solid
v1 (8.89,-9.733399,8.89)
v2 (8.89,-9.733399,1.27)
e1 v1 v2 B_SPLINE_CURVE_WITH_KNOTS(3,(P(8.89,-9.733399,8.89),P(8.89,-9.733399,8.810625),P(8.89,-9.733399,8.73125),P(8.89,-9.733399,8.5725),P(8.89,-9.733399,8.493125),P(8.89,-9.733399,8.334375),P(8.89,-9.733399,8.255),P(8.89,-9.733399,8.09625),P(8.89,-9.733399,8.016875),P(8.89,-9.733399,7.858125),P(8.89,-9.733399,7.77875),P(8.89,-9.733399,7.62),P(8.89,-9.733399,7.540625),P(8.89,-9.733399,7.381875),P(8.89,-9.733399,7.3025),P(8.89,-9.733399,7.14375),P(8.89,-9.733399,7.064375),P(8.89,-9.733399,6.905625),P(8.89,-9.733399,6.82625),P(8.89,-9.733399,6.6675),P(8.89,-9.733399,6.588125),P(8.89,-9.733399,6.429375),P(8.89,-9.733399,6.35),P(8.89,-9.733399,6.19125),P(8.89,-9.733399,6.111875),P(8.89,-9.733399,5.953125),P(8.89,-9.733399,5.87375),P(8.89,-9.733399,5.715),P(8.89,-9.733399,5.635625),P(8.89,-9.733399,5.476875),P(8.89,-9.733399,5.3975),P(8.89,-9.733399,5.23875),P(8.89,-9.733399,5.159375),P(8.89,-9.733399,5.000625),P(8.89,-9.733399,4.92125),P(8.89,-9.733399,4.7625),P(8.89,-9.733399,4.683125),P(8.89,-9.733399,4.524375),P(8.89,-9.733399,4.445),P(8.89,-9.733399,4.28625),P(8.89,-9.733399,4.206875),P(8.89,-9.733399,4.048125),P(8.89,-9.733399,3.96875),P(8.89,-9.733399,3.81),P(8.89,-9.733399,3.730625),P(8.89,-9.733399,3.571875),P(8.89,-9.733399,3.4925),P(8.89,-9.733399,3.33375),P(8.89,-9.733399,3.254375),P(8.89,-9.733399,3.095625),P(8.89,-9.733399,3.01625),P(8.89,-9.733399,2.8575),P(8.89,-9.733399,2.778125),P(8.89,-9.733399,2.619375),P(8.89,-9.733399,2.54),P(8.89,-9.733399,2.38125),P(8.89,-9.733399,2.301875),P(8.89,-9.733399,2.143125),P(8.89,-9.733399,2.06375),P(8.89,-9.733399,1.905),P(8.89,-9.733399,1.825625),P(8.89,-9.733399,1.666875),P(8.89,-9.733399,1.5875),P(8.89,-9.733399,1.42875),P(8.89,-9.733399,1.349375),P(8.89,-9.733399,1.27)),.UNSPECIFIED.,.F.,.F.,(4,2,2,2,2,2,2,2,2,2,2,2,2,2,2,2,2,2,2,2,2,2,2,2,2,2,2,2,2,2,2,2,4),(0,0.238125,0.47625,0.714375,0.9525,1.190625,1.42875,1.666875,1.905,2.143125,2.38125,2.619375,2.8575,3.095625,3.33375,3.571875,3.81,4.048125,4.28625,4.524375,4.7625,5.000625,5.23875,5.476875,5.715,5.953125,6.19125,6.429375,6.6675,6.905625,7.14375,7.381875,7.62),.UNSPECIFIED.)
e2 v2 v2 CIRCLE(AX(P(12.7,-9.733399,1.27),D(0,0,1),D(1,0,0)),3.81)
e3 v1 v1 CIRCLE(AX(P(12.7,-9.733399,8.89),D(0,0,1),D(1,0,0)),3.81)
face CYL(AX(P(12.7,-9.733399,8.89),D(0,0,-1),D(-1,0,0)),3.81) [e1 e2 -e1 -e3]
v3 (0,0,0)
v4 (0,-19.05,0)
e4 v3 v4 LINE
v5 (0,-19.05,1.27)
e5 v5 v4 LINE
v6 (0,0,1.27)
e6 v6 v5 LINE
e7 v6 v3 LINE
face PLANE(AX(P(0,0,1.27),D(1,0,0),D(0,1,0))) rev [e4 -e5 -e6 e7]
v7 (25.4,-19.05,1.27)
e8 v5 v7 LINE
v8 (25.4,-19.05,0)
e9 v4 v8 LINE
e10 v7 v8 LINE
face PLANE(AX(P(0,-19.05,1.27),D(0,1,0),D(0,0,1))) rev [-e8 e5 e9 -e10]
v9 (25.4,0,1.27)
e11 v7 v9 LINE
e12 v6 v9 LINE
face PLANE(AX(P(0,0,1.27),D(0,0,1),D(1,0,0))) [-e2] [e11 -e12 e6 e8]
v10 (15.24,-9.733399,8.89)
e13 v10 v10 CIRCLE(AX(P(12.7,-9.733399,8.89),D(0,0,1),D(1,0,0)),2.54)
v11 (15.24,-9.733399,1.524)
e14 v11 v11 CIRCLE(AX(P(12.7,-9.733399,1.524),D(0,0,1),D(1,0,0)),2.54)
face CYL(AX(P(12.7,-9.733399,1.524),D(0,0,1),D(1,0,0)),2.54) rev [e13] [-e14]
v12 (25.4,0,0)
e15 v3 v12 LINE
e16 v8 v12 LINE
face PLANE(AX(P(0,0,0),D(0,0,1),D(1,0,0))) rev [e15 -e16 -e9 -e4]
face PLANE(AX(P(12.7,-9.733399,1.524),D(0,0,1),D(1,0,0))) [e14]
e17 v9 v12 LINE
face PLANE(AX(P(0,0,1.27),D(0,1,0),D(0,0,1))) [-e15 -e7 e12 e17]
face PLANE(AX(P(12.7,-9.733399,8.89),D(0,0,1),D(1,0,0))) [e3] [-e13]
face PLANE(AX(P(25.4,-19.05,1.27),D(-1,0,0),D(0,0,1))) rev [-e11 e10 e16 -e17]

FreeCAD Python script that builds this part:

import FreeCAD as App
import Part
import Sketcher
from FreeCAD import Vector
Q = App.Units.Quantity


def add_polygon(sketch, points):
    """Adds a closed chain of lines whose ends are joined by coincident constraints."""
    first, n = sketch.GeometryCount, len(points)
    for a, b in zip(points, points[1:] + points[:1]):
        sketch.addGeometry(Part.LineSegment(App.Vector(*a, 0), App.Vector(*b, 0)), False)
    for i in range(n):
        sketch.addConstraint(Sketcher.Constraint("Coincident", first + i, 2, first + (i + 1) % n, 1))

doc = App.newDocument("Part")
body = doc.addObject("PartDesign::Body", "Body")

# Sketch on XY plane
sketch1 = doc.addObject("Sketcher::SketchObject", "Sketch")
body.addObject(sketch1)
sketch1.AttachmentSupport = (doc.XY_Plane, [""])
sketch1.MapMode = "FlatFace"
add_polygon(sketch1, [(0, 0), (0, -19), (25, -19), (25, 0)])  # lines 0-3
sketch1.addConstraint(Sketcher.Constraint("Vertical", 0))
sketch1.addConstraint(Sketcher.Constraint("Horizontal", 1))
sketch1.addConstraint(Sketcher.Constraint("Vertical", 2))
sketch1.addConstraint(Sketcher.Constraint("Horizontal", 3))
sketch1.addConstraint(Sketcher.Constraint("Coincident", 3, 2, -1, 1))
sketch1.addConstraint(Sketcher.Constraint("DistanceX", 1, 1, 1, 2, Q("1 in")))
sketch1.addConstraint(Sketcher.Constraint("DistanceY", 0, 2, 0, 1, Q("0.75 in")))
pad1 = doc.addObject("PartDesign::Pad", "Pad")
body.addObject(pad1)
pad1.Profile = sketch1
pad1.Length = Q("0.05 in")

# Sketch on XY plane
sketch2 = doc.addObject("Sketcher::SketchObject", "Sketch001")
body.addObject(sketch2)
sketch2.AttachmentSupport = (doc.XY_Plane, [""])
sketch2.MapMode = "FlatFace"
sketch2.AttachmentOffset = App.Placement(Vector(0, 0, 0.05 * 25.4), App.Rotation())
sketch2.addGeometry(Part.Circle(Vector(12.7, -9.7, 0), Vector(0, 0, 1), 3.8), False)
sketch2.addConstraint(Sketcher.Constraint("Diameter", 0, Q("0.3 in")))
sketch2.addConstraint(Sketcher.Constraint("DistanceX", -1, 1, 0, 3, Q("0.5 in")))
sketch2.addConstraint(Sketcher.Constraint("DistanceY", 0, 3, -1, 1, Q("9.733399 mm")))
pad2 = doc.addObject("PartDesign::Pad", "Pad001")
body.addObject(pad2)
pad2.Profile = sketch2
pad2.Length = Q("0.3 in")

# Sketch on XY plane
sketch3 = doc.addObject("Sketcher::SketchObject", "Sketch002")
body.addObject(sketch3)
sketch3.AttachmentSupport = (doc.XY_Plane, [""])
sketch3.MapMode = "FlatFace"
sketch3.AttachmentOffset = App.Placement(Vector(0, 0, 0.35 * 25.4), App.Rotation())
sketch3.addGeometry(Part.Circle(Vector(12.7, -9.7, 0), Vector(0, 0, 1), 2.5), False)
sketch3.addConstraint(Sketcher.Constraint("Diameter", 0, Q("0.2 in")))
sketch3.addConstraint(Sketcher.Constraint("DistanceX", -1, 1, 0, 3, Q("0.5 in")))
sketch3.addConstraint(Sketcher.Constraint("DistanceY", 0, 3, -1, 1, Q("9.733399 mm")))
pocket1 = doc.addObject("PartDesign::Pocket", "Pocket")
body.addObject(pocket1)
pocket1.Profile = sketch3
pocket1.Length = Q("0.29 in")

doc.recompute()
